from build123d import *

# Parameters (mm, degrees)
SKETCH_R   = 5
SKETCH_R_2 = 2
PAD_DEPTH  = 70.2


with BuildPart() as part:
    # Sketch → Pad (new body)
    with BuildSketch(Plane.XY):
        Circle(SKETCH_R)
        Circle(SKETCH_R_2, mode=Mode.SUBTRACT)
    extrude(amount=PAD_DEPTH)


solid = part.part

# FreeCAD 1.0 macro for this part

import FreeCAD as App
import Part
import Sketcher
from FreeCAD import Vector

doc = App.newDocument("Part")
params = doc.addObject("Spreadsheet::Sheet", "Params")
for row, (alias, value) in enumerate([
    ("sketch1_diameter", "10 mm"),
    ("sketch1_diameter2", "4 mm"),
    ("pad1_length", "70.2 mm"),
], start=1):
    params.set(f"A{row}", alias)
    params.set(f"B{row}", "=" + value)
    params.setAlias(f"B{row}", alias)

body = doc.addObject("PartDesign::Body", "Body")

# Sketch on XY plane
sketch1 = doc.addObject("Sketcher::SketchObject", "Sketch")
body.addObject(sketch1)
sketch1.AttachmentSupport = (doc.XY_Plane, [""])
sketch1.MapMode = "FlatFace"
sketch1.addGeometry([
    Part.Circle(Vector(0, 0, 0), Vector(0, 0, 1), 5),
    Part.Circle(Vector(0, 0, 0), Vector(0, 0, 1), 2),
], False)
sketch1.addConstraint([
    Sketcher.Constraint("Coincident", 0, 3, -1, 1),
    Sketcher.Constraint("Coincident", 1, 3, -1, 1),
    Sketcher.Constraint("Diameter", 0, 10.0),
    Sketcher.Constraint("Diameter", 1, 4.0),
])
sketch1.setExpression("Constraints[2]", "Params.sketch1_diameter")
sketch1.setExpression("Constraints[3]", "Params.sketch1_diameter2")
pad1 = doc.addObject("PartDesign::Pad", "Pad")
body.addObject(pad1)
pad1.Profile = sketch1
pad1.setExpression("Length", "Params.pad1_length")

doc.recompute()
